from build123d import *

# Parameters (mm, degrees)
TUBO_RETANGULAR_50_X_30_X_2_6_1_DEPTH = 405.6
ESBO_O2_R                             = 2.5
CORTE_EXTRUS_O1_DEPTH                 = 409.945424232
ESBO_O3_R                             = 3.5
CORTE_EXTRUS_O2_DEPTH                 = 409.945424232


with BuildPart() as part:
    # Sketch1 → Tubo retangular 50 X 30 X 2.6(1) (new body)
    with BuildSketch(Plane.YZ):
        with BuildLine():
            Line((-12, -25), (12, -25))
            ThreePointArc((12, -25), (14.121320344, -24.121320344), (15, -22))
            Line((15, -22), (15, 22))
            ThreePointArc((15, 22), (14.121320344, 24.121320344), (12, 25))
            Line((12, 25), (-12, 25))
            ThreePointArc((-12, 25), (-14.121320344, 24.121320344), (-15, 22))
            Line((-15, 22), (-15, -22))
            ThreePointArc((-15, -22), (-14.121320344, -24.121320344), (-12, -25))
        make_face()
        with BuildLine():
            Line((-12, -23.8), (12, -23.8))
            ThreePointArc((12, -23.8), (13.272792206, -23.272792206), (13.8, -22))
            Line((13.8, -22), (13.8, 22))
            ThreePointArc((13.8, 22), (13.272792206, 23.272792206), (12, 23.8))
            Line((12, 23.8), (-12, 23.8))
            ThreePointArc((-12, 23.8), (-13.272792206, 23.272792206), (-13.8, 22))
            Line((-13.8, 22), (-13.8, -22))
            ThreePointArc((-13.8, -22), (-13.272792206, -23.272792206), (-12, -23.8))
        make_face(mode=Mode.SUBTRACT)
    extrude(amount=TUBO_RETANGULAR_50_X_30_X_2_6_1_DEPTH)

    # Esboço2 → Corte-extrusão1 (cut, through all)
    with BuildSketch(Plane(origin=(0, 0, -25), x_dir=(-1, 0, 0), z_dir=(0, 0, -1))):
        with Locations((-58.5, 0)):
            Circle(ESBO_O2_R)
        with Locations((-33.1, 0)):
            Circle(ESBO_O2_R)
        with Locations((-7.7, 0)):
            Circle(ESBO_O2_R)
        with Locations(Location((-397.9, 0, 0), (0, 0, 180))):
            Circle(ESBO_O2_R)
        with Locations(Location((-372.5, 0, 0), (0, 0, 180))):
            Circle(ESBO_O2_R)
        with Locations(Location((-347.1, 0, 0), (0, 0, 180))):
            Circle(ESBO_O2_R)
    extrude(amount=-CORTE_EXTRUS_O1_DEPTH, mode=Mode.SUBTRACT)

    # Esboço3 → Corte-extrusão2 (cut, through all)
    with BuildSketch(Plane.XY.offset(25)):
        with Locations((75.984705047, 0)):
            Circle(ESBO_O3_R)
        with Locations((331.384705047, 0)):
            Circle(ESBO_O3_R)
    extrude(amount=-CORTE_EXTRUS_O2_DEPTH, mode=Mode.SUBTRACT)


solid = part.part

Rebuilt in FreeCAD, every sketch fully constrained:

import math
import FreeCAD as App
import Part
import Sketcher

V = App.Vector
Q = App.Units.Quantity

doc = App.newDocument("Part")
body = doc.addObject("PartDesign::Body", "Body")

# Sketch on YZ plane
sketch1 = body.newObject("Sketcher::SketchObject", "Sketch")
sketch1.AttachmentSupport = (doc.getObject("YZ_Plane"), [""])
sketch1.MapMode = "FlatFace"
sketch1.addGeometry([
    Part.LineSegment(V(-12, -25, 0), V(12, -25, 0)),  # 0
    Part.ArcOfCircle(Part.Circle(V(12, -22, 0), V(0, 0, 1), 3), math.radians(-90), math.radians(0)),  # 1
    Part.LineSegment(V(15, -22, 0), V(15, 22, 0)),  # 2
    Part.ArcOfCircle(Part.Circle(V(12, 22, 0), V(0, 0, 1), 3), math.radians(0), math.radians(90)),  # 3
    Part.LineSegment(V(12, 25, 0), V(-12, 25, 0)),  # 4
    Part.ArcOfCircle(Part.Circle(V(-12, 22, 0), V(0, 0, 1), 3), math.radians(90), math.radians(180)),  # 5
    Part.LineSegment(V(-15, 22, 0), V(-15, -22, 0)),  # 6
    Part.ArcOfCircle(Part.Circle(V(-12, -22, 0), V(0, 0, 1), 3), math.radians(180), math.radians(270)),  # 7
    Part.LineSegment(V(12, -23.8, 0), V(-12, -23.8, 0)),  # 8
    Part.ArcOfCircle(Part.Circle(V(-12, -22, 0), V(0, 0, 1), 1.8), math.radians(180), math.radians(270)),  # 9
    Part.LineSegment(V(-13.8, -22, 0), V(-13.8, 22, 0)),  # 10
    Part.ArcOfCircle(Part.Circle(V(-12, 22, 0), V(0, 0, 1), 1.8), math.radians(90), math.radians(180)),  # 11
    Part.LineSegment(V(-12, 23.8, 0), V(12, 23.8, 0)),  # 12
    Part.ArcOfCircle(Part.Circle(V(12, 22, 0), V(0, 0, 1), 1.8), math.radians(0), math.radians(90)),  # 13
    Part.LineSegment(V(13.8, 22, 0), V(13.8, -22, 0)),  # 14
    Part.ArcOfCircle(Part.Circle(V(12, -22, 0), V(0, 0, 1), 1.8), math.radians(-90), math.radians(0)),  # 15
], False)
sketch1.addConstraint([
    Sketcher.Constraint("Tangent", 0, 2, 1, 1),
    Sketcher.Constraint("Tangent", 1, 2, 2, 1),
    Sketcher.Constraint("Tangent", 2, 2, 3, 1),
    Sketcher.Constraint("Tangent", 3, 2, 4, 1),
    Sketcher.Constraint("Tangent", 4, 2, 5, 1),
    Sketcher.Constraint("Tangent", 5, 2, 6, 1),
    Sketcher.Constraint("Tangent", 6, 2, 7, 1),
    Sketcher.Constraint("Tangent", 7, 2, 0, 1),
    Sketcher.Constraint("Tangent", 8, 2, 9, 2),
    Sketcher.Constraint("Tangent", 9, 1, 10, 1),
    Sketcher.Constraint("Tangent", 10, 2, 11, 2),
    Sketcher.Constraint("Tangent", 11, 1, 12, 1),
    Sketcher.Constraint("Tangent", 12, 2, 13, 2),
    Sketcher.Constraint("Tangent", 13, 1, 14, 1),
    Sketcher.Constraint("Tangent", 14, 2, 15, 2),
    Sketcher.Constraint("Tangent", 15, 1, 8, 1),
    Sketcher.Constraint("Horizontal", 0),
    Sketcher.Constraint("Vertical", 2),
    Sketcher.Constraint("Horizontal", 4),
    Sketcher.Constraint("Vertical", 6),
    Sketcher.Constraint("Horizontal", 8),
    Sketcher.Constraint("Vertical", 10),
    Sketcher.Constraint("Horizontal", 12),
    Sketcher.Constraint("Vertical", 14),
    Sketcher.Constraint("Coincident", 9, 3, 7, 3),
    Sketcher.Constraint("Coincident", 11, 3, 5, 3),
    Sketcher.Constraint("Coincident", 13, 3, 3, 3),
    Sketcher.Constraint("Equal", 1, 3),
    Sketcher.Constraint("Equal", 3, 5),
    Sketcher.Constraint("Equal", 5, 7),
    Sketcher.Constraint("Equal", 13, 15),
    Sketcher.Constraint("Symmetric", 1, 3, 5, 3, -1, 1),
    Sketcher.Constraint("Radius", 1, Q("3 mm")),
    Sketcher.Constraint("Radius", 9, Q("1.8 mm")),
    Sketcher.Constraint("DistanceX", 0, 1, 0, 2, Q("24 mm")),
    Sketcher.Constraint("DistanceY", 2, 1, 2, 2, Q("44 mm")),
])
pad1 = body.newObject("PartDesign::Pad", "Pad")
pad1.Profile = sketch1
pad1.Length = 405.6

# Sketch on XY plane
sketch2 = body.newObject("Sketcher::SketchObject", "Sketch001")
sketch2.AttachmentSupport = (doc.getObject("XY_Plane"), [""])
sketch2.MapMode = "FlatFace"
sketch2.AttachmentOffset = App.Placement(V(0, 0, -25), App.Rotation())
sketch2.addGeometry([
    Part.Circle(V(58.5, 0, 0), V(0, 0, 1), 2.5),  # 0
    Part.Circle(V(33.1, 0, 0), V(0, 0, 1), 2.5),  # 1
    Part.Circle(V(7.7, 0, 0), V(0, 0, 1), 2.5),  # 2
    Part.Circle(V(397.9, 0, 0), V(0, 0, 1), 2.5),  # 3
    Part.Circle(V(372.5, 0, 0), V(0, 0, 1), 2.5),  # 4
    Part.Circle(V(347.1, 0, 0), V(0, 0, 1), 2.5),  # 5
], False)
sketch2.addConstraint([
    Sketcher.Constraint("Equal", 0, 1),
    Sketcher.Constraint("Equal", 1, 2),
    Sketcher.Constraint("Equal", 2, 3),
    Sketcher.Constraint("Equal", 3, 4),
    Sketcher.Constraint("Equal", 4, 5),
    Sketcher.Constraint("PointOnObject", 0, 3, -1),
    Sketcher.Constraint("PointOnObject", 1, 3, -1),
    Sketcher.Constraint("PointOnObject", 2, 3, -1),
    Sketcher.Constraint("PointOnObject", 3, 3, -1),
    Sketcher.Constraint("PointOnObject", 4, 3, -1),
    Sketcher.Constraint("PointOnObject", 5, 3, -1),
    Sketcher.Constraint("Diameter", 0, Q("5 mm")),
    Sketcher.Constraint("DistanceX", 0, 3, 4, 3, Q("314 mm")),
    Sketcher.Constraint("DistanceX", 1, 3, 5, 3, Q("314 mm")),
    Sketcher.Constraint("DistanceX", -1, 1, 0, 3, Q("58.5 mm")),
    Sketcher.Constraint("DistanceX", -1, 1, 1, 3, Q("33.1 mm")),
    Sketcher.Constraint("DistanceX", -1, 1, 2, 3, Q("7.7 mm")),
    Sketcher.Constraint("DistanceX", -1, 1, 3, 3, Q("397.9 mm")),
])
pocket1 = body.newObject("PartDesign::Pocket", "Pocket")
pocket1.Profile = sketch2
pocket1.Type = "ThroughAll"
pocket1.Reversed = True

# Sketch on XY plane
sketch3 = body.newObject("Sketcher::SketchObject", "Sketch002")
sketch3.AttachmentSupport = (doc.getObject("XY_Plane"), [""])
sketch3.MapMode = "FlatFace"
sketch3.AttachmentOffset = App.Placement(V(0, 0, 25), App.Rotation())
sketch3.addGeometry([
    Part.Circle(V(75.984705, 0, 0), V(0, 0, 1), 3.5),
    Part.Circle(V(331.384705, 0, 0), V(0, 0, 1), 3.5),
], False)
sketch3.addConstraint([
    Sketcher.Constraint("Equal", 0, 1),
    Sketcher.Constraint("PointOnObject", 0, 3, -1),
    Sketcher.Constraint("PointOnObject", 1, 3, -1),
    Sketcher.Constraint("Diameter", 0, Q("7 mm")),
    Sketcher.Constraint("DistanceX", 0, 3, 1, 3, Q("255.4 mm")),
    Sketcher.Constraint("DistanceX", -1, 1, 0, 3, Q("75.984705 mm")),
])
pocket2 = body.newObject("PartDesign::Pocket", "Pocket001")
pocket2.Profile = sketch3
pocket2.Type = "ThroughAll"

doc.recompute()
